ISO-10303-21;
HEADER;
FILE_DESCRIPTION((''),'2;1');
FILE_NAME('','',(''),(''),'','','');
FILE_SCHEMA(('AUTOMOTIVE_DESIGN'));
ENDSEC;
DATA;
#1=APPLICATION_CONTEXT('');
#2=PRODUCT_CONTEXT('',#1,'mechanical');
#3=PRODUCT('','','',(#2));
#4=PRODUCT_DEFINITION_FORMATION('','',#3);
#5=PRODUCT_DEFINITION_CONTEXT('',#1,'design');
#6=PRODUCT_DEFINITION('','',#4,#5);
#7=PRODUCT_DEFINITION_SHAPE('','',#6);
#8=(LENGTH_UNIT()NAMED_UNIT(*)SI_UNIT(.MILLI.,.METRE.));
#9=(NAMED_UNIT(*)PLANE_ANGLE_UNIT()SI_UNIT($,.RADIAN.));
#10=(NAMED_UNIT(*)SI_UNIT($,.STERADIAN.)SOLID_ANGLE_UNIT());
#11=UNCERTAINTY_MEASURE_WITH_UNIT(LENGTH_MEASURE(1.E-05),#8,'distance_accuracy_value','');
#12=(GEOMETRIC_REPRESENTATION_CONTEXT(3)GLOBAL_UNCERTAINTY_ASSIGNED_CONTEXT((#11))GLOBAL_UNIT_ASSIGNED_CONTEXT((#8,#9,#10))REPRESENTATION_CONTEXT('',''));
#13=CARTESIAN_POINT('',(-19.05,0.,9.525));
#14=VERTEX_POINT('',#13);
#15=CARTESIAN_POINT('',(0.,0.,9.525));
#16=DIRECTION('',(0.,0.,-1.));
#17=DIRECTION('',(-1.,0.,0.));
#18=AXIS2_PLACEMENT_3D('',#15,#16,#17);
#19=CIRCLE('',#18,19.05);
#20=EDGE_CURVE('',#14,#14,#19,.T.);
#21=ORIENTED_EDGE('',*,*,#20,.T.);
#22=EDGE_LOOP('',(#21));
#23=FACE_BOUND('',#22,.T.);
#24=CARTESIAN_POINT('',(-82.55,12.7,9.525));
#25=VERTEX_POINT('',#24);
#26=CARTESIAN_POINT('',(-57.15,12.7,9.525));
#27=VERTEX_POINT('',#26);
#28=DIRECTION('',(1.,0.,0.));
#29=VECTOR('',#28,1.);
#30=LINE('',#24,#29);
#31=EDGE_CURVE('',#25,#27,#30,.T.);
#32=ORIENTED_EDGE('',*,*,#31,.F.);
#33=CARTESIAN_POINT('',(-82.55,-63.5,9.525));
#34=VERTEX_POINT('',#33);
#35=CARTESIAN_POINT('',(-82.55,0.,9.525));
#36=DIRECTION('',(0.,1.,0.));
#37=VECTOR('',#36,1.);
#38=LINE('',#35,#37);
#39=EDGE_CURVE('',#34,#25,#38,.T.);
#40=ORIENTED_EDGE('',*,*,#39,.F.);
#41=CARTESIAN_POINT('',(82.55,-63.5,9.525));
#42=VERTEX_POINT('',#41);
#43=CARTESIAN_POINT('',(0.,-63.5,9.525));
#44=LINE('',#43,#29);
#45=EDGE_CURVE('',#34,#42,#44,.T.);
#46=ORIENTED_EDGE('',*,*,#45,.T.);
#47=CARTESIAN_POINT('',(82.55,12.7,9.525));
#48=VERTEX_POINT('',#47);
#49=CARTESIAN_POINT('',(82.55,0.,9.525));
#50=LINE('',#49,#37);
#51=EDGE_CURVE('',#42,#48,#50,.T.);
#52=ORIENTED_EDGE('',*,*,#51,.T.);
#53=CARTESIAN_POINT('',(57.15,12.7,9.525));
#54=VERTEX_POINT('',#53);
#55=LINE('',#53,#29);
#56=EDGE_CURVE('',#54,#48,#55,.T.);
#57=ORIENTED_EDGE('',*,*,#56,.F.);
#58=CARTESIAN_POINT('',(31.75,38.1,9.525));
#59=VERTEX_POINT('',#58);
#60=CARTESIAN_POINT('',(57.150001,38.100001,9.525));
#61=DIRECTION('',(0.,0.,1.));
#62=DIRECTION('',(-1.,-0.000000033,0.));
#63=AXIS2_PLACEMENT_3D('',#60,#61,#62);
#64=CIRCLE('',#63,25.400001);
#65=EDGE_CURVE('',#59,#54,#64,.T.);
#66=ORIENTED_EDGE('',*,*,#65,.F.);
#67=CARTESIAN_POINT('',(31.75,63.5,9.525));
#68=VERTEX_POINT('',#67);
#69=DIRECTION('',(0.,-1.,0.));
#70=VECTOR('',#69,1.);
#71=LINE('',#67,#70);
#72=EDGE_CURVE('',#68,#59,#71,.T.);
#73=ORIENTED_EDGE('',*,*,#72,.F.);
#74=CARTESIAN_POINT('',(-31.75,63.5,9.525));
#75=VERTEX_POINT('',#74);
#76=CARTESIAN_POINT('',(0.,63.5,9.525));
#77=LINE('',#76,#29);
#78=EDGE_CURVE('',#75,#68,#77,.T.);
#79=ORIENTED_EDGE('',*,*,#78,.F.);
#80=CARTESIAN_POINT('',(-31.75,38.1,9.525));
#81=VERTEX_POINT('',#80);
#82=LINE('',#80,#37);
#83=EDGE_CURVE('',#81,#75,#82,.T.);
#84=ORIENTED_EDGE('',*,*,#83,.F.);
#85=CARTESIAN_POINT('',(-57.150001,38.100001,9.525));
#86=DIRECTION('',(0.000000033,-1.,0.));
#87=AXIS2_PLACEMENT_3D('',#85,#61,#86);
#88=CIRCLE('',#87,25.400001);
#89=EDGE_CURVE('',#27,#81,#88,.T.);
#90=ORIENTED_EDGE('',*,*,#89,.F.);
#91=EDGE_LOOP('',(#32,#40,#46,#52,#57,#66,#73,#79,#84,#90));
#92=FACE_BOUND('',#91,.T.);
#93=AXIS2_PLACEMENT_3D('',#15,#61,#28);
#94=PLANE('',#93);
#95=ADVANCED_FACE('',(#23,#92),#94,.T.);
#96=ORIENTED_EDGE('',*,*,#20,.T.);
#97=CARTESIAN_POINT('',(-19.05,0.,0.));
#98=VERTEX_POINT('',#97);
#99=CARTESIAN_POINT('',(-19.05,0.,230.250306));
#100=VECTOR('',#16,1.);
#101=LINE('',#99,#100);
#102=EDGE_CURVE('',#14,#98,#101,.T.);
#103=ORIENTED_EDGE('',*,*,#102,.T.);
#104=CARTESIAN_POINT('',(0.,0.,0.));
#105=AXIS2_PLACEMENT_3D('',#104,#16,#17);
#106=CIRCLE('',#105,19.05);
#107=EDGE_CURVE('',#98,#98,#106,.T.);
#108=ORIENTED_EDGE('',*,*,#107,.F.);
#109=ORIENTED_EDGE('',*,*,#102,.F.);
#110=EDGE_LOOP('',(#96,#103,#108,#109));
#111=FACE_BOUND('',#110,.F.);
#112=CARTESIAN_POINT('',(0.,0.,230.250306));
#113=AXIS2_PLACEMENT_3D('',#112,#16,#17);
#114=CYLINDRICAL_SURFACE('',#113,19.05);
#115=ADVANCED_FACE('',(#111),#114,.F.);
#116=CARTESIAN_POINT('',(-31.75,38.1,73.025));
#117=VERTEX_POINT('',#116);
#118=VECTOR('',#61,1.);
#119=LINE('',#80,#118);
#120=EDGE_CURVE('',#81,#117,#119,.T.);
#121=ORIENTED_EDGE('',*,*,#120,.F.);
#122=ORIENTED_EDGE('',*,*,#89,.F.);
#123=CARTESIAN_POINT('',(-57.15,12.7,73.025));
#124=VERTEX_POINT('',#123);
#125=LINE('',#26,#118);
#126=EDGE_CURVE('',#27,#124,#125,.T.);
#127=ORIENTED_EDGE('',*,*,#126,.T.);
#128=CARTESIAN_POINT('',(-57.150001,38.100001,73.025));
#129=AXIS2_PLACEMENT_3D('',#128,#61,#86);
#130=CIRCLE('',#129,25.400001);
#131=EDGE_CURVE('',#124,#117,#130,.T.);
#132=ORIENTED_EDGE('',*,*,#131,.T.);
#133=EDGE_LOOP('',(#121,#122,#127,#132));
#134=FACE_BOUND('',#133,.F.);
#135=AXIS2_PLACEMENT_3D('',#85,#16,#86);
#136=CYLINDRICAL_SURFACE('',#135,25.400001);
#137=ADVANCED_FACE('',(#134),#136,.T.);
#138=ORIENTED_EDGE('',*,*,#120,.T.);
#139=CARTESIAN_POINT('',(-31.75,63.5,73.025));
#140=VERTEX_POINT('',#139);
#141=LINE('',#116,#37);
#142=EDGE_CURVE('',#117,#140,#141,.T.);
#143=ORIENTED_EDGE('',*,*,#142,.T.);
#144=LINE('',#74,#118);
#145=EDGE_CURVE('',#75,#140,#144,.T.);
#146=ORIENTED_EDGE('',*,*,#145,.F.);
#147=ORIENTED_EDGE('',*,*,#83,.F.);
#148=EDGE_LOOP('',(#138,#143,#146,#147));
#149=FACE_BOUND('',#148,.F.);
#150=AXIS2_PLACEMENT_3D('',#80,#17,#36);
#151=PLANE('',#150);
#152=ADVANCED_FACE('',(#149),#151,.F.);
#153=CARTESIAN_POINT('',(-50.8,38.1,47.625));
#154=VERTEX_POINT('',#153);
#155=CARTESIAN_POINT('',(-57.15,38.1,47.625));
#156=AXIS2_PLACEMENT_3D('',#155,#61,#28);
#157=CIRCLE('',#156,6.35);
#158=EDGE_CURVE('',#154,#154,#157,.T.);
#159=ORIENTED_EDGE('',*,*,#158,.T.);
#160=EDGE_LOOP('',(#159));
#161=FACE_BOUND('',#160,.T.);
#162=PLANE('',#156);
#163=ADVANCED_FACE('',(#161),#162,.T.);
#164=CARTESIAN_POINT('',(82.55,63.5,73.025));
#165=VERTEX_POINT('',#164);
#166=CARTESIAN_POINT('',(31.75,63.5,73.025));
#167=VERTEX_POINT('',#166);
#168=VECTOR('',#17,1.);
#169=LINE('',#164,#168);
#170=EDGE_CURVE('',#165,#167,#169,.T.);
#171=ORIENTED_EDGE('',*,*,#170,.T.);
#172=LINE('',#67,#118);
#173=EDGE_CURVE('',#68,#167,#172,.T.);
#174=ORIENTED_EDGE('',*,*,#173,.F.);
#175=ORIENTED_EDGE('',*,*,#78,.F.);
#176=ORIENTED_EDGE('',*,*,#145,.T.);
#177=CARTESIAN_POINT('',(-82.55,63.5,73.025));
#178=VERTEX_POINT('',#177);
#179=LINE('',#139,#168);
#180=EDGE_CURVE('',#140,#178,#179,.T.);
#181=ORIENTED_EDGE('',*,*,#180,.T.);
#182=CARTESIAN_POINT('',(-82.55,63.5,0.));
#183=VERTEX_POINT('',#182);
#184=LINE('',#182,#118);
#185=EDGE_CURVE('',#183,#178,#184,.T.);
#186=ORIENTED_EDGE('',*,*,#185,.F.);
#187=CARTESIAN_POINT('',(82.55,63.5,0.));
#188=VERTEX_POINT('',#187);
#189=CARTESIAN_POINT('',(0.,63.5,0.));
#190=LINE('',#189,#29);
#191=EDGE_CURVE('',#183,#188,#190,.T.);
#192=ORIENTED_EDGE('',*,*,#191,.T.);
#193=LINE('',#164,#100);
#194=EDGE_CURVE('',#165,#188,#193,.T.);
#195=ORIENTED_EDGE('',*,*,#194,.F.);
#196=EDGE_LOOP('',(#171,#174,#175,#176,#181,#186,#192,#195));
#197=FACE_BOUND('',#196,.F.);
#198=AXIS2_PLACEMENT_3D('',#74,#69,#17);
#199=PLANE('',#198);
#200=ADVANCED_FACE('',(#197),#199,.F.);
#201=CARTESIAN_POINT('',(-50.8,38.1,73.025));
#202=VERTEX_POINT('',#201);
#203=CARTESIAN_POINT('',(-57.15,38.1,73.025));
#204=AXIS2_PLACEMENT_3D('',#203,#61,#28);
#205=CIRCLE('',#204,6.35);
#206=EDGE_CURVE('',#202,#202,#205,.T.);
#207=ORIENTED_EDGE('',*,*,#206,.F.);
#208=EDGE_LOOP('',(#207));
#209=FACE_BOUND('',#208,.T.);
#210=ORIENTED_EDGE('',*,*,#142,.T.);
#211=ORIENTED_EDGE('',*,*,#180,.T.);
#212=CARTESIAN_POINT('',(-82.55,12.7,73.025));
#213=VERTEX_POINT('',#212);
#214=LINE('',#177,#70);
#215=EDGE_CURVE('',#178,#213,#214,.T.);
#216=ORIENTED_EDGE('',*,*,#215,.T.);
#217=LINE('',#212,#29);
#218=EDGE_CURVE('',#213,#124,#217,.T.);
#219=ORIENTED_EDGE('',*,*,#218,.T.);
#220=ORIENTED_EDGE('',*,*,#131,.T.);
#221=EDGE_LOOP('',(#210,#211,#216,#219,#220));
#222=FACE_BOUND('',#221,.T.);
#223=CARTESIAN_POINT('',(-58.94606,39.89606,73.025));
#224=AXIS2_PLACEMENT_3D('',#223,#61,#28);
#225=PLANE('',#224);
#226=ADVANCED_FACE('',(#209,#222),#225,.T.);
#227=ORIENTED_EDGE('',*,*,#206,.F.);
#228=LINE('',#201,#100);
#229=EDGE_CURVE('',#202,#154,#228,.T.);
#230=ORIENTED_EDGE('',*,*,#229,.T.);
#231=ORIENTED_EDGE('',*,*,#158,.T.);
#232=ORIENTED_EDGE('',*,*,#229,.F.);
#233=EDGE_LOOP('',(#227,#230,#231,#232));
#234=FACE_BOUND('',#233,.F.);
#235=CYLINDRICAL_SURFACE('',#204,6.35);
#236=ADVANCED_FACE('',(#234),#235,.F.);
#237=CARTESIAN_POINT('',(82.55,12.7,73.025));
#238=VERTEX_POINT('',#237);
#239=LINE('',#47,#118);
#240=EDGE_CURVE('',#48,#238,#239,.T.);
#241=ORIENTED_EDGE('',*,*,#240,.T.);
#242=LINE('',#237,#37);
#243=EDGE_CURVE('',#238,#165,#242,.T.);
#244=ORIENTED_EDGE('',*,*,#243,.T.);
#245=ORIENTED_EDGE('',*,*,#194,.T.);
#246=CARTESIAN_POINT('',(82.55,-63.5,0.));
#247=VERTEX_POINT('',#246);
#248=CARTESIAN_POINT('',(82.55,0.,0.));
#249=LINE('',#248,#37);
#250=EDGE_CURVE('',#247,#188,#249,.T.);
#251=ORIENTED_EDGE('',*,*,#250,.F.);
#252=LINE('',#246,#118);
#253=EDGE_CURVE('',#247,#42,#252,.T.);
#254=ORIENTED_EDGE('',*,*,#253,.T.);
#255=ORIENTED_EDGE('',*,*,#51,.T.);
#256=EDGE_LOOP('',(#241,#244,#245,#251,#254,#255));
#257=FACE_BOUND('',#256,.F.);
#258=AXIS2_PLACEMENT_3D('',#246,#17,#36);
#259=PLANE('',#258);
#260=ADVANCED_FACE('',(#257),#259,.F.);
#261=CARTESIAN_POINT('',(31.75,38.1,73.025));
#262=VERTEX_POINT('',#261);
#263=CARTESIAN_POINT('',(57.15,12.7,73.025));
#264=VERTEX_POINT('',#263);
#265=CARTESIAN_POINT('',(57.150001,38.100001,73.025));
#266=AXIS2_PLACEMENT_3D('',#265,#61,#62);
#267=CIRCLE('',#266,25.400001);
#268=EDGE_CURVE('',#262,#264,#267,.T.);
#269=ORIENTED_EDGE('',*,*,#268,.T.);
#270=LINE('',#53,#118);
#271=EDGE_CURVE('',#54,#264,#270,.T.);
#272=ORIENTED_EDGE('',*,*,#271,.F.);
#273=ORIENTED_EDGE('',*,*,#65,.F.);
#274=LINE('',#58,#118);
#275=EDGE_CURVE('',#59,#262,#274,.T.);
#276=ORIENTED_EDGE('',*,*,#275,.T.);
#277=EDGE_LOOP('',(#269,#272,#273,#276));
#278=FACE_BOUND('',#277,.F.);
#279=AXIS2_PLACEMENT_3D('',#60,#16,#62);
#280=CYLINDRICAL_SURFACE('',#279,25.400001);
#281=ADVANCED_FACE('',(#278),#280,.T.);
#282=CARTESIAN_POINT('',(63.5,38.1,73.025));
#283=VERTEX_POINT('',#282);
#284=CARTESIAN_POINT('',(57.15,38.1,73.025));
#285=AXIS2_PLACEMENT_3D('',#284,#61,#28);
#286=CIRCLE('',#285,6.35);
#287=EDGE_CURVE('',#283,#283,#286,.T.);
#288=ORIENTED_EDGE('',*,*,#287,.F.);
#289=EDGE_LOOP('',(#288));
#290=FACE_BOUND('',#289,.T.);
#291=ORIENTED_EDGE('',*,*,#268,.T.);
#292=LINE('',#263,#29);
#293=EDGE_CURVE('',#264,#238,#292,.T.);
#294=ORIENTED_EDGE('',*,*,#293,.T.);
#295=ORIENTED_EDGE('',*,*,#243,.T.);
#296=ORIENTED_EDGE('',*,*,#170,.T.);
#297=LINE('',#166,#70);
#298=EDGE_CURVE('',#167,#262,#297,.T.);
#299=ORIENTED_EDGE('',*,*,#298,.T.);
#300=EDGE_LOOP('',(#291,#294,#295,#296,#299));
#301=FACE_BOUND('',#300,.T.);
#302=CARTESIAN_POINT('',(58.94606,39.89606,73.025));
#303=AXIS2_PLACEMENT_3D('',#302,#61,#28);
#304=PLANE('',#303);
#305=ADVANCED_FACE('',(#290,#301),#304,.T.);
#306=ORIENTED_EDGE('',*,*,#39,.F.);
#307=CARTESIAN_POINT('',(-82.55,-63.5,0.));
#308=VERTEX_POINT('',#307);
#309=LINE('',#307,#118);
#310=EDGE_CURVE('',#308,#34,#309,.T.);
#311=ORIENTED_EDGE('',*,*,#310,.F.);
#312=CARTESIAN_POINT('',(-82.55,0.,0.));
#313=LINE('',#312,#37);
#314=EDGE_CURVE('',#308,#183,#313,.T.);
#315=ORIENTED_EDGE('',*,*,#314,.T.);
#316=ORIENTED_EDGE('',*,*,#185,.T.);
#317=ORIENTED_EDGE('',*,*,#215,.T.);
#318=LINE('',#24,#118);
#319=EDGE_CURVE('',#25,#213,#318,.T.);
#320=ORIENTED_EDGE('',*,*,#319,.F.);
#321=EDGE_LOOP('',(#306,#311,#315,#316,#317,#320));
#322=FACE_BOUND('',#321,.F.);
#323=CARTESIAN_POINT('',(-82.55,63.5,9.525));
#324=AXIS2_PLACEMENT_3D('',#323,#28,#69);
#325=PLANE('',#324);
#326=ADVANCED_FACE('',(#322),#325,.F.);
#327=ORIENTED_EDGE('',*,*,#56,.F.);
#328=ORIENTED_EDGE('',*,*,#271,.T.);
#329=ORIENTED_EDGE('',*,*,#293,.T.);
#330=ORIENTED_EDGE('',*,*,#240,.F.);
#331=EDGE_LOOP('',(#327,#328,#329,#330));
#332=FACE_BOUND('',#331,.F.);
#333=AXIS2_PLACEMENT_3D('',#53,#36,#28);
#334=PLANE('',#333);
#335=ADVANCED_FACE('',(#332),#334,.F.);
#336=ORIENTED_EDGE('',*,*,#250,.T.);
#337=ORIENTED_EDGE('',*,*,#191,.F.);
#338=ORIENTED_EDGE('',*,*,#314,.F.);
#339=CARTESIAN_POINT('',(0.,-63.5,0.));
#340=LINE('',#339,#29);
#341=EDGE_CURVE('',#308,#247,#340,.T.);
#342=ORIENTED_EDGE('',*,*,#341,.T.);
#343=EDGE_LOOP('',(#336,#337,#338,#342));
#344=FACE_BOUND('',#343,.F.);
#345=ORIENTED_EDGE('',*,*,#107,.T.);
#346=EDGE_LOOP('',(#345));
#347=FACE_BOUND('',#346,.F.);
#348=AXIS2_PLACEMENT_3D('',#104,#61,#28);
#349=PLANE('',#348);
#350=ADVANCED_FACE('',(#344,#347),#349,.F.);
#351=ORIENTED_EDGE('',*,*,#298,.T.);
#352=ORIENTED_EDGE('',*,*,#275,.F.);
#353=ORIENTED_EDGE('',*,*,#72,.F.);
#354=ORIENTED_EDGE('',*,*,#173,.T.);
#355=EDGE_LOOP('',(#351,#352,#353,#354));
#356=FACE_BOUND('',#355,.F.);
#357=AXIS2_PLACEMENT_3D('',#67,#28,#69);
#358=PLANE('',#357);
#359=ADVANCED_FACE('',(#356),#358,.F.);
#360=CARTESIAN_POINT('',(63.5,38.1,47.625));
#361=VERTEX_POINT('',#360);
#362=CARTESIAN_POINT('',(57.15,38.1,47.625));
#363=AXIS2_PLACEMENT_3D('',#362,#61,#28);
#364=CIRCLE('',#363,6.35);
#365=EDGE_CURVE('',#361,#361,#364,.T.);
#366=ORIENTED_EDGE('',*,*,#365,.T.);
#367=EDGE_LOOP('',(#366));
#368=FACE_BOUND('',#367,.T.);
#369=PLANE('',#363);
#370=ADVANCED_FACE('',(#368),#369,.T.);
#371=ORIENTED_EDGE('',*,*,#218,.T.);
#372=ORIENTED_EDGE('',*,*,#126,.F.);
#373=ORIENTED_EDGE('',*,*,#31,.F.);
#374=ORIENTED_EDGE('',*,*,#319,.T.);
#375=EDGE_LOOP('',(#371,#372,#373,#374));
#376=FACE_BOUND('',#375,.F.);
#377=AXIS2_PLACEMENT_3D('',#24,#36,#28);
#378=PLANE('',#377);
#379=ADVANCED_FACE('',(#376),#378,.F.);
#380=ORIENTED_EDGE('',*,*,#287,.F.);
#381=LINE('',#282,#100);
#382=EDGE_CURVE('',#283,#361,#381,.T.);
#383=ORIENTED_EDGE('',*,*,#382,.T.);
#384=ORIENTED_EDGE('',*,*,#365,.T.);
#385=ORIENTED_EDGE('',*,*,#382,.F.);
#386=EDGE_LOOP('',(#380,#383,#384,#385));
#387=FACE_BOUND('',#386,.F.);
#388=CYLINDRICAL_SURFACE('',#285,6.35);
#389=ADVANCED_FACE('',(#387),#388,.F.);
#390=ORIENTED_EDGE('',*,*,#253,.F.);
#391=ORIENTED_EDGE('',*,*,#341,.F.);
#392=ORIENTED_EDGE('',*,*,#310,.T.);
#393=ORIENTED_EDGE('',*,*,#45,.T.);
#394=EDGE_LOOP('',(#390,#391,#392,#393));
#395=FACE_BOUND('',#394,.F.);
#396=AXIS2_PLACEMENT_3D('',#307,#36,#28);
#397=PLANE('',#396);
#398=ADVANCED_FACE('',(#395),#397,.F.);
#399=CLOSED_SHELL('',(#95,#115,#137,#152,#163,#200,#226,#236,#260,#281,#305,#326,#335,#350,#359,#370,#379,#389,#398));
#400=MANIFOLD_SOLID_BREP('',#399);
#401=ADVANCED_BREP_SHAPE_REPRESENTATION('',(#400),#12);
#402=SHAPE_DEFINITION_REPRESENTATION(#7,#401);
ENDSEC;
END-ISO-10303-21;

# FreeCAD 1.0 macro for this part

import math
import FreeCAD as App
import Part
import Sketcher

V = App.Vector
Q = App.Units.Quantity

doc = App.newDocument("Part")
body = doc.addObject("PartDesign::Body", "Body")

sketch1 = body.newObject("Sketcher::SketchObject", "Sketch")
sketch1.AttachmentSupport = (doc.getObject("XY_Plane"), [""])
sketch1.MapMode = "FlatFace"
sketch1.addGeometry([
    Part.LineSegment(V(-82.55, 63.5, 0), V(-82.55, -63.5, 0)),
    Part.LineSegment(V(-82.55, -63.5, 0), V(82.55, -63.5, 0)),
    Part.LineSegment(V(82.55, -63.5, 0), V(82.55, 63.5, 0)),
    Part.LineSegment(V(82.55, 63.5, 0), V(-82.55, 63.5, 0)),
], False)
sketch1.addConstraint([
    Sketcher.Constraint("Coincident", 0, 2, 1, 1),
    Sketcher.Constraint("Coincident", 1, 2, 2, 1),
    Sketcher.Constraint("Coincident", 2, 2, 3, 1),
    Sketcher.Constraint("Coincident", 3, 2, 0, 1),
    Sketcher.Constraint("Vertical", 0),
    Sketcher.Constraint("Horizontal", 1),
    Sketcher.Constraint("Vertical", 2),
    Sketcher.Constraint("Horizontal", 3),
    Sketcher.Constraint("Symmetric", 0, 2, 2, 2, -1, 1),
    Sketcher.Constraint("DistanceY", 0, 2, 0, 1, Q("5 in")),
    Sketcher.Constraint("DistanceX", 1, 1, 1, 2, Q("6.5 in")),
])
pad1 = body.newObject("PartDesign::Pad", "Pad")
pad1.Profile = sketch1
pad1.Length = Q("0.375 in")

sketch2 = body.newObject("Sketcher::SketchObject", "Sketch001")
sketch2.AttachmentSupport = (doc.getObject("XY_Plane"), [""])
sketch2.MapMode = "FlatFace"
sketch2.AttachmentOffset = App.Placement(V(0, 0, 0.375 * 25.4), App.Rotation())
sketch2.addGeometry([
    Part.LineSegment(V(-31.75, 63.5, 0), V(-82.55, 63.5, 0)),
    Part.LineSegment(V(-82.55, 63.5, 0), V(-82.55, 12.7, 0)),
    Part.LineSegment(V(-82.55, 12.7, 0), V(-57.15, 12.7, 0)),
    Part.ArcOfCircle(Part.Circle(V(-57.150001, 38.100001, 0), V(0, 0, 1), 25.400001), math.radians(-89.999998), math.radians(-0.000002)),
    Part.LineSegment(V(-31.75, 38.1, 0), V(-31.75, 63.5, 0)),
    Part.LineSegment(V(82.55, 63.5, 0), V(31.75, 63.5, 0)),
    Part.LineSegment(V(31.75, 63.5, 0), V(31.75, 38.1, 0)),
    Part.ArcOfCircle(Part.Circle(V(57.150001, 38.100001, 0), V(0, 0, 1), 25.400001), math.radians(-179.999998), math.radians(-90.000002)),
    Part.LineSegment(V(57.15, 12.7, 0), V(82.55, 12.7, 0)),
    Part.LineSegment(V(82.55, 12.7, 0), V(82.55, 63.5, 0)),
], False)
sketch2.addConstraint([
    Sketcher.Constraint("Coincident", 0, 2, 1, 1),
    Sketcher.Constraint("Coincident", 1, 2, 2, 1),
    Sketcher.Constraint("Tangent", 2, 2, 3, 1),
    Sketcher.Constraint("Tangent", 3, 2, 4, 1),
    Sketcher.Constraint("Coincident", 4, 2, 0, 1),
    Sketcher.Constraint("Coincident", 5, 2, 6, 1),
    Sketcher.Constraint("Tangent", 6, 2, 7, 1),
    Sketcher.Constraint("Tangent", 7, 2, 8, 1),
    Sketcher.Constraint("Coincident", 8, 2, 9, 1),
    Sketcher.Constraint("Coincident", 9, 2, 5, 1),
    Sketcher.Constraint("Horizontal", 0),
    Sketcher.Constraint("Vertical", 1),
    Sketcher.Constraint("Horizontal", 2),
    Sketcher.Constraint("Vertical", 4),
    Sketcher.Constraint("Horizontal", 5),
    Sketcher.Constraint("Vertical", 6),
    Sketcher.Constraint("Horizontal", 8),
    Sketcher.Constraint("Vertical", 9),
    Sketcher.Constraint("Equal", 3, 7),
    Sketcher.Constraint("Symmetric", 3, 3, 7, 3, -2),
    Sketcher.Constraint("Symmetric", 0, 2, 9, 2, -2),
    Sketcher.Constraint("Equal", 5, 1),
    Sketcher.Constraint("Radius", 3, Q("1 in")),
    Sketcher.Constraint("DistanceX", 0, 2, 0, 1, Q("2 in")),
    Sketcher.Constraint("DistanceY", -1, 1, 3, 3, Q("1.5 in")),
    Sketcher.Constraint("DistanceX", 3, 3, 7, 3, Q("4.5000001 in")),
])
pad2 = body.newObject("PartDesign::Pad", "Pad001")
pad2.Profile = sketch2
pad2.Length = Q("2.5 in")

sketch3 = body.newObject("Sketcher::SketchObject", "Sketch002")
sketch3.AttachmentSupport = (doc.getObject("XY_Plane"), [""])
sketch3.MapMode = "FlatFace"
sketch3.AttachmentOffset = App.Placement(V(0, 0, 0.375 * 25.4), App.Rotation())
sketch3.addGeometry(Part.Circle(V(0, 0, 0), V(0, 0, 1), 19.05), False)
sketch3.addConstraint([
    Sketcher.Constraint("Coincident", 0, 3, -1, 1),
    Sketcher.Constraint("Diameter", 0, Q("1.5 in")),
])
doc.recompute()
hole = body.newObject("PartDesign::Hole", "Hole")
hole.Profile = sketch3
hole.ThreadType = "None"
hole.Diameter = Q("1.5 in")
hole.DepthType = "ThroughAll"

sketch4 = body.newObject("Sketcher::SketchObject", "Sketch003")
sketch4.AttachmentSupport = (doc.getObject("XY_Plane"), [""])
sketch4.MapMode = "FlatFace"
sketch4.AttachmentOffset = App.Placement(V(0, 0, 2.875 * 25.4), App.Rotation())
sketch4.addGeometry([
    Part.Circle(V(-57.15, 38.1, 0), V(0, 0, 1), 6.35),
    Part.Circle(V(57.15, 38.1, 0), V(0, 0, 1), 6.35),
], False)
sketch4.addConstraint([
    Sketcher.Constraint("Equal", 0, 1),
    Sketcher.Constraint("Symmetric", 0, 3, 1, 3, -2),
    Sketcher.Constraint("Diameter", 0, Q("0.5 in")),
    Sketcher.Constraint("DistanceY", -1, 1, 0, 3, Q("1.5 in")),
    Sketcher.Constraint("DistanceX", 0, 3, 1, 3, Q("4.5 in")),
])
pocket1 = body.newObject("PartDesign::Pocket", "Pocket")
pocket1.Profile = sketch4
pocket1.Length = Q("1 in")

doc.recompute()
